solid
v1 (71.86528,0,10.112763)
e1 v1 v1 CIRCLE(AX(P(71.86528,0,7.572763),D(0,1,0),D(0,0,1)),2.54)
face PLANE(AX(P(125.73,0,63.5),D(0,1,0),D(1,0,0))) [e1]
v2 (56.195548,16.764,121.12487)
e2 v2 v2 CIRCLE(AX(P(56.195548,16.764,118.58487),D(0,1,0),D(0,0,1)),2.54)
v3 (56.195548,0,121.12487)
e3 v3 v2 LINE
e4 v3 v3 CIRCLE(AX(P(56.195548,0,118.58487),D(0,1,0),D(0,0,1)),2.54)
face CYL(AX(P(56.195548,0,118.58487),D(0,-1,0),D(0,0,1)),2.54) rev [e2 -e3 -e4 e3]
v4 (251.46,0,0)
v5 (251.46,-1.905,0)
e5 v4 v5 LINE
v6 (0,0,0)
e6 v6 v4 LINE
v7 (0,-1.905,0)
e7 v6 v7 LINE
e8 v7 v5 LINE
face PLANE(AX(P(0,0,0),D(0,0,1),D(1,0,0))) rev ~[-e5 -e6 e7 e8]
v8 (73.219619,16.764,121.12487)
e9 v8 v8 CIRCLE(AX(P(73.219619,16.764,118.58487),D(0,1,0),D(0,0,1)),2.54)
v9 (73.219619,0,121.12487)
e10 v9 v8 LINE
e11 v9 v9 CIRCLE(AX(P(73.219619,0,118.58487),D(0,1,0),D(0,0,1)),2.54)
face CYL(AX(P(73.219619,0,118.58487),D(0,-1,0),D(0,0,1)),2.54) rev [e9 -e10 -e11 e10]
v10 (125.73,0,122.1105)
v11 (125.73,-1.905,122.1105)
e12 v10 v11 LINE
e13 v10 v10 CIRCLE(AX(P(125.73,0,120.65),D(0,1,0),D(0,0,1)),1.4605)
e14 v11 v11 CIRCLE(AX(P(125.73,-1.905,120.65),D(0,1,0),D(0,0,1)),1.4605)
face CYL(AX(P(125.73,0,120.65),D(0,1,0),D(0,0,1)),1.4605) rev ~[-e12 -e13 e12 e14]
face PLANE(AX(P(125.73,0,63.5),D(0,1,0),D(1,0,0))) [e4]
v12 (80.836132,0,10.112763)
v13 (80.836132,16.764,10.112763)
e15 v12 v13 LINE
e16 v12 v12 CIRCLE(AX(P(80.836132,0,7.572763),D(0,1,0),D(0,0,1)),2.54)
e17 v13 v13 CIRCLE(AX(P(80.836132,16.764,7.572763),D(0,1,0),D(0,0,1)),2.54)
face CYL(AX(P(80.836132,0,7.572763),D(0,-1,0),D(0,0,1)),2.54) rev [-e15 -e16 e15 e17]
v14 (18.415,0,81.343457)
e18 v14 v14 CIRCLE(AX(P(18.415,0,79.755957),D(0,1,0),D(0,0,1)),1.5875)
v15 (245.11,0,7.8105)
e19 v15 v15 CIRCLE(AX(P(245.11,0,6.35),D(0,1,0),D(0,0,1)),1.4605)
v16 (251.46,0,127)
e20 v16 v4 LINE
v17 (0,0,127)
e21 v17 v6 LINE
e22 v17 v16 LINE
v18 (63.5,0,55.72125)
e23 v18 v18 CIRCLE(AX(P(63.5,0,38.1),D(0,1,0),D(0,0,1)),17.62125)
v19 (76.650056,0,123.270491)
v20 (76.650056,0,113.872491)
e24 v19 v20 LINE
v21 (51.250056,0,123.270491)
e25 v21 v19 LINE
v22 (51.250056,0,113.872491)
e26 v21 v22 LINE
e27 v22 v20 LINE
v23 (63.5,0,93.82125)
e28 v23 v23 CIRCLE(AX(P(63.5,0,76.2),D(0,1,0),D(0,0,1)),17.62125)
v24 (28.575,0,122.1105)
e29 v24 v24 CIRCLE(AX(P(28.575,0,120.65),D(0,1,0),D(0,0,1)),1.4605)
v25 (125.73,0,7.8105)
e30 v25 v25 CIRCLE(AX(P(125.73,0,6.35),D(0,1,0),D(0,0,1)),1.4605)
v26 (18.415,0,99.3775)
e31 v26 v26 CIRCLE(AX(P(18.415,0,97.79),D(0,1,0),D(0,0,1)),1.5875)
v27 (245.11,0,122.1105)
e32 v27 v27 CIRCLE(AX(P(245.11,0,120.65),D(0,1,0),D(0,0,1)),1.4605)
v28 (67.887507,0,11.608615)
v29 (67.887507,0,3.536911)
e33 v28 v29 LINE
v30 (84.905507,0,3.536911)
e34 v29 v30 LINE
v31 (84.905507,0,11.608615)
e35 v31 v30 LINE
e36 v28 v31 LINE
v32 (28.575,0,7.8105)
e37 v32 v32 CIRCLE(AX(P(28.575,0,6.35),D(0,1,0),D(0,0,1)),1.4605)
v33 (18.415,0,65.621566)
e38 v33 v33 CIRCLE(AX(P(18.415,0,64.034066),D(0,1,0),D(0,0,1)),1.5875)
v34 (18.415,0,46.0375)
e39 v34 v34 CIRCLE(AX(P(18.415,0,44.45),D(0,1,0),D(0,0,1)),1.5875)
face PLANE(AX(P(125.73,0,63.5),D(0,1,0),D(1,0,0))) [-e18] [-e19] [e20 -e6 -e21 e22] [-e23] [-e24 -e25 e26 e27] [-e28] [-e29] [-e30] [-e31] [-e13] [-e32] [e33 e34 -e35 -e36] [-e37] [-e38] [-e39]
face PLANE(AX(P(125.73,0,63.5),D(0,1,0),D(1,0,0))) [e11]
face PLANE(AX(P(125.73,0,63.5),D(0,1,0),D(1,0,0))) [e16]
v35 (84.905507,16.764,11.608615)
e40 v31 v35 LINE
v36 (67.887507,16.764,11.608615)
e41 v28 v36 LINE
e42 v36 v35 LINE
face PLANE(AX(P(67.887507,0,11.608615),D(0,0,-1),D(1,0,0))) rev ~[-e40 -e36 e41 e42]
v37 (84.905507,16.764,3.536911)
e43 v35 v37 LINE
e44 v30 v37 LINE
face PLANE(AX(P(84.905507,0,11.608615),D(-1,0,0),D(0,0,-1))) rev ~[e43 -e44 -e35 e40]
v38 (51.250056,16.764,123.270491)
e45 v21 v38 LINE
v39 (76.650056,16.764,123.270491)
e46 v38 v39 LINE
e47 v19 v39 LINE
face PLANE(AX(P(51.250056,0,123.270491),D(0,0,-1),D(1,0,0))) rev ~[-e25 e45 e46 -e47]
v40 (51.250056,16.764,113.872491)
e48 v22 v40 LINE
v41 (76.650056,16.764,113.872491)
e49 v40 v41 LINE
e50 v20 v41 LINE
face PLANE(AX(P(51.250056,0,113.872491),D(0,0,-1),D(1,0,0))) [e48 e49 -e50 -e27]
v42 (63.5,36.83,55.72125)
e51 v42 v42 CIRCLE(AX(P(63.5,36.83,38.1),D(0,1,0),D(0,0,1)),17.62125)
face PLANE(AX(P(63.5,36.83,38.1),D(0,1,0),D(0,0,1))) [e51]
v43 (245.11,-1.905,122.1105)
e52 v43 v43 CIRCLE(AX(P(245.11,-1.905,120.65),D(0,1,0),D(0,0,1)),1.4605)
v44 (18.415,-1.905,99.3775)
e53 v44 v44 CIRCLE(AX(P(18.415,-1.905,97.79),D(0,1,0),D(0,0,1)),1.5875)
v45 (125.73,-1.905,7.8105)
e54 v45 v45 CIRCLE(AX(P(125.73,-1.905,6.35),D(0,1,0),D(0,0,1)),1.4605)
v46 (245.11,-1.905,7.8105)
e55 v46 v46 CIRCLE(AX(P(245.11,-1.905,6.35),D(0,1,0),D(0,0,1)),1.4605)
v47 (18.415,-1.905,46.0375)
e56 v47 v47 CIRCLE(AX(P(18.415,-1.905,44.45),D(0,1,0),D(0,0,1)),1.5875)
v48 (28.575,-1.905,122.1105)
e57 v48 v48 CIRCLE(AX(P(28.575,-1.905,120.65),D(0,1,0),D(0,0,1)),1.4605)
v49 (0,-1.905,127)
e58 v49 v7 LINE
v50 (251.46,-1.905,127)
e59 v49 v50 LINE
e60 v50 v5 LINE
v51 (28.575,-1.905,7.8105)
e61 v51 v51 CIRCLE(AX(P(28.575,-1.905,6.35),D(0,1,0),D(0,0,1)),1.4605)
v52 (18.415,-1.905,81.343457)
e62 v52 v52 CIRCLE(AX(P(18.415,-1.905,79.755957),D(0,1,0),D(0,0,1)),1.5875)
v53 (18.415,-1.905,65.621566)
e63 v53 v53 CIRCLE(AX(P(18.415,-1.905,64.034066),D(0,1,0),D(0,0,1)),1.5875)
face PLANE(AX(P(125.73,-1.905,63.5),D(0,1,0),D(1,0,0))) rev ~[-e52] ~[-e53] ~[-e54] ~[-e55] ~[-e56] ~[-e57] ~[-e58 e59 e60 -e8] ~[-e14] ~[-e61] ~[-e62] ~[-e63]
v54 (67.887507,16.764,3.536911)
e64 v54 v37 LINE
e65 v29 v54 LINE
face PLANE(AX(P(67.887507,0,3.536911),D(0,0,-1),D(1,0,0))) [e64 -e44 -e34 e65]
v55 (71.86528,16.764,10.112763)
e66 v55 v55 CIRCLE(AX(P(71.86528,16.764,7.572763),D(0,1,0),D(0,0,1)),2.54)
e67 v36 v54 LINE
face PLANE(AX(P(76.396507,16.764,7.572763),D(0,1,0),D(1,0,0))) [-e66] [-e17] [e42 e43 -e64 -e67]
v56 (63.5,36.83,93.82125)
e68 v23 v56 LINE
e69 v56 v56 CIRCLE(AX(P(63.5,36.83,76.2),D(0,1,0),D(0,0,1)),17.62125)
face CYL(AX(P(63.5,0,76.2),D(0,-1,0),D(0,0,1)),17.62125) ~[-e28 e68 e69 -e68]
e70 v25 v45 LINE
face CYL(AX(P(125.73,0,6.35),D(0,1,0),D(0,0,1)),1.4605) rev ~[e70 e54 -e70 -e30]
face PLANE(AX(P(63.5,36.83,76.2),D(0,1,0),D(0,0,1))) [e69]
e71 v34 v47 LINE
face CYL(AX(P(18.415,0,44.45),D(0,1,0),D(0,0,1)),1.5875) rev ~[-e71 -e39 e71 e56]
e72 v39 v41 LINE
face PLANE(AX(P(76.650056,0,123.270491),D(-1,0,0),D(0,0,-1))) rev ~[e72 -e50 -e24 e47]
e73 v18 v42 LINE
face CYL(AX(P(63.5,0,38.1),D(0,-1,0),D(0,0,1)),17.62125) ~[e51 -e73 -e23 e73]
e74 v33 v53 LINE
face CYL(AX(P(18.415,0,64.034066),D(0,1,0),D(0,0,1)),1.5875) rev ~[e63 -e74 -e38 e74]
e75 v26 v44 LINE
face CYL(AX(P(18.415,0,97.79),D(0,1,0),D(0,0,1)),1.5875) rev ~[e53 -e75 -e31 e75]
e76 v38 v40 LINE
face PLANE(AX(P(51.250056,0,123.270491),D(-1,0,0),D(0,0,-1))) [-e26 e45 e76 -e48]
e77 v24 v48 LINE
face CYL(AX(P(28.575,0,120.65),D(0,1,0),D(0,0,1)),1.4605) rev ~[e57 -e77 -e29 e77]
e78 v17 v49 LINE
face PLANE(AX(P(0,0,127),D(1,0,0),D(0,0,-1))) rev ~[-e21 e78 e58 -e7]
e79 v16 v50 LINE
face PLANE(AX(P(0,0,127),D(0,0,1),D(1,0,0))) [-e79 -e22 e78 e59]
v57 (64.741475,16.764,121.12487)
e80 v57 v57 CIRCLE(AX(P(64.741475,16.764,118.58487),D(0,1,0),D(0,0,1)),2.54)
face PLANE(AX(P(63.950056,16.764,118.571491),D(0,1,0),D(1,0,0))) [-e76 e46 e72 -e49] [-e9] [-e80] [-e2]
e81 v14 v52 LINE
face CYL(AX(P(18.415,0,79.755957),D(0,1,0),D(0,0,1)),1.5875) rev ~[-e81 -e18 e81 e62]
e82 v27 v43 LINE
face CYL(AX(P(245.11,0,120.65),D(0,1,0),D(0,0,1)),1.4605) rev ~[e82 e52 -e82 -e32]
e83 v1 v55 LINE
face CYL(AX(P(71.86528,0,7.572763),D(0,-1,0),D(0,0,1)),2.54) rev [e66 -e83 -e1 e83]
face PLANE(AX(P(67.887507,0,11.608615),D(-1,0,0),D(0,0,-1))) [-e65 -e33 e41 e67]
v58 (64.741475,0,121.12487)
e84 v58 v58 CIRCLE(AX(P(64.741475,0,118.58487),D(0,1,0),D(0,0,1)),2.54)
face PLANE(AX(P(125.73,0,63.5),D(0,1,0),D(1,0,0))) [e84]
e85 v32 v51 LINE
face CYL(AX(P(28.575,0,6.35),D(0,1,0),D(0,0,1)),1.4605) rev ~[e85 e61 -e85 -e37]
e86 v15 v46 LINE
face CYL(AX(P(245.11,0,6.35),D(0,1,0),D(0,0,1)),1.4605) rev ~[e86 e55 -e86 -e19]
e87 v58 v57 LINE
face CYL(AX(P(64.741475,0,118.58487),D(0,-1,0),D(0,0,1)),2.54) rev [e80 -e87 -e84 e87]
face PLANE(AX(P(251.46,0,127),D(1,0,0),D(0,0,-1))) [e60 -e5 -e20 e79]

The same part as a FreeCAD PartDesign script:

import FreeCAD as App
import Part
import Sketcher
Q = App.Units.Quantity

doc = App.newDocument("Part")
body = doc.addObject("PartDesign::Body", "Body")

# Sketch on XZ plane
sketch1 = body.newObject("Sketcher::SketchObject", "Sketch")
sketch1.AttachmentSupport = (doc.getObject("XZ_Plane"), [""])
sketch1.MapMode = "FlatFace"
sketch1.addGeometry(Part.LineSegment(App.Vector(0, 0, 0), App.Vector(0, 127, 0)), False)
sketch1.addGeometry(Part.LineSegment(App.Vector(0, 127, 0), App.Vector(251.5, 127, 0)), False)
sketch1.addGeometry(Part.LineSegment(App.Vector(251.5, 127, 0), App.Vector(251.5, 0, 0)), False)
sketch1.addGeometry(Part.LineSegment(App.Vector(251.5, 0, 0), App.Vector(0, 0, 0)), False)
sketch1.addGeometry(Part.Circle(App.Vector(28.6, 120.7, 0), App.Vector(0, 0, 1), 1.5), False)
sketch1.addGeometry(Part.Circle(App.Vector(18.4, 97.8, 0), App.Vector(0, 0, 1), 1.6), False)
sketch1.addGeometry(Part.Circle(App.Vector(125.7, 120.7, 0), App.Vector(0, 0, 1), 1.5), False)
sketch1.addGeometry(Part.Circle(App.Vector(18.4, 79.8, 0), App.Vector(0, 0, 1), 1.6), False)
sketch1.addGeometry(Part.Circle(App.Vector(18.4, 64, 0), App.Vector(0, 0, 1), 1.6), False)
sketch1.addGeometry(Part.Circle(App.Vector(245.1, 120.7, 0), App.Vector(0, 0, 1), 1.5), False)
sketch1.addGeometry(Part.Circle(App.Vector(18.4, 44.5, 0), App.Vector(0, 0, 1), 1.6), False)
sketch1.addGeometry(Part.Circle(App.Vector(28.6, 6.3, 0), App.Vector(0, 0, 1), 1.5), False)
sketch1.addGeometry(Part.Circle(App.Vector(125.7, 6.3, 0), App.Vector(0, 0, 1), 1.5), False)
sketch1.addGeometry(Part.Circle(App.Vector(245.1, 6.3, 0), App.Vector(0, 0, 1), 1.5), False)
sketch1.addConstraint(Sketcher.Constraint("Coincident", 0, 2, 1, 1))
sketch1.addConstraint(Sketcher.Constraint("Coincident", 1, 2, 2, 1))
sketch1.addConstraint(Sketcher.Constraint("Coincident", 2, 2, 3, 1))
sketch1.addConstraint(Sketcher.Constraint("Coincident", 3, 2, 0, 1))
sketch1.addConstraint(Sketcher.Constraint("Vertical", 0))
sketch1.addConstraint(Sketcher.Constraint("Horizontal", 1))
sketch1.addConstraint(Sketcher.Constraint("Vertical", 2))
sketch1.addConstraint(Sketcher.Constraint("Horizontal", 3))
sketch1.addConstraint(Sketcher.Constraint("Coincident", 3, 2, -1, 1))
sketch1.addConstraint(Sketcher.Constraint("Equal", 4, 6))
sketch1.addConstraint(Sketcher.Constraint("Equal", 5, 7))
sketch1.addConstraint(Sketcher.Constraint("Equal", 7, 8))
sketch1.addConstraint(Sketcher.Constraint("Equal", 6, 9))
sketch1.addConstraint(Sketcher.Constraint("Equal", 8, 10))
sketch1.addConstraint(Sketcher.Constraint("Equal", 9, 11))
sketch1.addConstraint(Sketcher.Constraint("Equal", 11, 12))
sketch1.addConstraint(Sketcher.Constraint("Equal", 12, 13))
sketch1.addConstraint(Sketcher.Constraint("Horizontal", 4, 3, 6, 3))
sketch1.addConstraint(Sketcher.Constraint("Horizontal", 6, 3, 9, 3))
sketch1.addConstraint(Sketcher.Constraint("Horizontal", 11, 3, 12, 3))
sketch1.addConstraint(Sketcher.Constraint("Horizontal", 12, 3, 13, 3))
sketch1.addConstraint(Sketcher.Constraint("Vertical", 5, 3, 7, 3))
sketch1.addConstraint(Sketcher.Constraint("Vertical", 7, 3, 8, 3))
sketch1.addConstraint(Sketcher.Constraint("Vertical", 8, 3, 10, 3))
sketch1.addConstraint(Sketcher.Constraint("Vertical", 4, 3, 11, 3))
sketch1.addConstraint(Sketcher.Constraint("Vertical", 6, 3, 12, 3))
sketch1.addConstraint(Sketcher.Constraint("Vertical", 9, 3, 13, 3))
sketch1.addConstraint(Sketcher.Constraint("DistanceY", 0, 1, 0, 2, Q("5 in")))
sketch1.addConstraint(Sketcher.Constraint("Diameter", 4, Q("0.115 in")))
sketch1.addConstraint(Sketcher.Constraint("Diameter", 5, Q("0.125 in")))
sketch1.addConstraint(Sketcher.Constraint("DistanceX", 1, 1, 1, 2, Q("9.9 in")))
sketch1.addConstraint(Sketcher.Constraint("DistanceY", 10, 3, 4, 3, Q("3 in")))
sketch1.addConstraint(Sketcher.Constraint("DistanceX", 5, 3, 4, 3, Q("0.4 in")))
sketch1.addConstraint(Sketcher.Constraint("DistanceY", 5, 3, 4, 3, Q("0.9 in")))
sketch1.addConstraint(Sketcher.Constraint("DistanceX", 6, 3, 9, 3, Q("4.7 in")))
sketch1.addConstraint(Sketcher.Constraint("DistanceY", 11, 3, 10, 3, Q("1.5 in")))
sketch1.addConstraint(Sketcher.Constraint("DistanceY", -1, 1, 4, 3, Q("4.75 in")))
sketch1.addConstraint(Sketcher.Constraint("DistanceX", -1, 1, 6, 3, Q("4.95 in")))
sketch1.addConstraint(Sketcher.Constraint("DistanceX", -1, 1, 4, 3, Q("1.125 in")))
sketch1.addConstraint(Sketcher.Constraint("DistanceY", 8, 3, 7, 3, Q("15.72189 mm")))
sketch1.addConstraint(Sketcher.Constraint("DistanceY", -1, 1, 7, 3, Q("79.755957 mm")))
pad1 = body.newObject("PartDesign::Pad", "Pad")
pad1.Profile = sketch1
pad1.Length = Q("0.075 in")

# Sketch on XZ plane
sketch2 = body.newObject("Sketcher::SketchObject", "Sketch001")
sketch2.AttachmentSupport = (doc.getObject("XZ_Plane"), [""])
sketch2.MapMode = "FlatFace"
sketch2.addGeometry(Part.Circle(App.Vector(64, 76, 0), App.Vector(0, 0, 1), 18), False)
sketch2.addGeometry(Part.Circle(App.Vector(64, 38, 0), App.Vector(0, 0, 1), 18), False)
sketch2.addConstraint(Sketcher.Constraint("Equal", 0, 1))
sketch2.addConstraint(Sketcher.Constraint("Vertical", 0, 3, 1, 3))
sketch2.addConstraint(Sketcher.Constraint("DistanceY", -1, 1, 0, 3, Q("3 in")))
sketch2.addConstraint(Sketcher.Constraint("Diameter", 0, Q("1.3875 in")))
sketch2.addConstraint(Sketcher.Constraint("DistanceX", -1, 1, 0, 3, Q("2.5 in")))
sketch2.addConstraint(Sketcher.Constraint("DistanceY", -1, 1, 1, 3, Q("1.5 in")))
pad2 = body.newObject("PartDesign::Pad", "Pad001")
pad2.Profile = sketch2
pad2.Length = Q("1.45 in")
pad2.Reversed = True

# Sketch on XZ plane
sketch3 = body.newObject("Sketcher::SketchObject", "Sketch002")
sketch3.AttachmentSupport = (doc.getObject("XZ_Plane"), [""])
sketch3.MapMode = "FlatFace"
sketch3.addGeometry(Part.LineSegment(App.Vector(51.3, 113.9, 0), App.Vector(51.3, 123.3, 0)), False)
sketch3.addGeometry(Part.LineSegment(App.Vector(51.3, 123.3, 0), App.Vector(76.7, 123.3, 0)), False)
sketch3.addGeometry(Part.LineSegment(App.Vector(76.7, 123.3, 0), App.Vector(76.7, 113.9, 0)), False)
sketch3.addGeometry(Part.LineSegment(App.Vector(76.7, 113.9, 0), App.Vector(51.3, 113.9, 0)), False)
sketch3.addGeometry(Part.Circle(App.Vector(56.2, 118.6, 0), App.Vector(0, 0, 1), 2.5), False)
sketch3.addGeometry(Part.Circle(App.Vector(64.7, 118.6, 0), App.Vector(0, 0, 1), 2.5), False)
sketch3.addGeometry(Part.Circle(App.Vector(73.2, 118.6, 0), App.Vector(0, 0, 1), 2.5), False)
sketch3.addGeometry(Part.LineSegment(App.Vector(67.9, 3.5, 0), App.Vector(67.9, 11.6, 0)), False)
sketch3.addGeometry(Part.LineSegment(App.Vector(67.9, 11.6, 0), App.Vector(84.9, 11.6, 0)), False)
sketch3.addGeometry(Part.LineSegment(App.Vector(84.9, 11.6, 0), App.Vector(84.9, 3.5, 0)), False)
sketch3.addGeometry(Part.LineSegment(App.Vector(84.9, 3.5, 0), App.Vector(67.9, 3.5, 0)), False)
sketch3.addGeometry(Part.Circle(App.Vector(71.9, 7.6, 0), App.Vector(0, 0, 1), 2.5), False)
sketch3.addGeometry(Part.Circle(App.Vector(80.8, 7.6, 0), App.Vector(0, 0, 1), 2.5), False)
sketch3.addConstraint(Sketcher.Constraint("Coincident", 0, 2, 1, 1))
sketch3.addConstraint(Sketcher.Constraint("Coincident", 1, 2, 2, 1))
sketch3.addConstraint(Sketcher.Constraint("Coincident", 2, 2, 3, 1))
sketch3.addConstraint(Sketcher.Constraint("Coincident", 3, 2, 0, 1))
sketch3.addConstraint(Sketcher.Constraint("Coincident", 7, 2, 8, 1))
sketch3.addConstraint(Sketcher.Constraint("Coincident", 8, 2, 9, 1))
sketch3.addConstraint(Sketcher.Constraint("Coincident", 9, 2, 10, 1))
sketch3.addConstraint(Sketcher.Constraint("Coincident", 10, 2, 7, 1))
sketch3.addConstraint(Sketcher.Constraint("Vertical", 0))
sketch3.addConstraint(Sketcher.Constraint("Horizontal", 1))
sketch3.addConstraint(Sketcher.Constraint("Vertical", 2))
sketch3.addConstraint(Sketcher.Constraint("Horizontal", 3))
sketch3.addConstraint(Sketcher.Constraint("Vertical", 7))
sketch3.addConstraint(Sketcher.Constraint("Horizontal", 8))
sketch3.addConstraint(Sketcher.Constraint("Vertical", 9))
sketch3.addConstraint(Sketcher.Constraint("Horizontal", 10))
sketch3.addConstraint(Sketcher.Constraint("Equal", 4, 5))
sketch3.addConstraint(Sketcher.Constraint("Equal", 5, 6))
sketch3.addConstraint(Sketcher.Constraint("Equal", 6, 11))
sketch3.addConstraint(Sketcher.Constraint("Equal", 11, 12))
sketch3.addConstraint(Sketcher.Constraint("Horizontal", 4, 3, 5, 3))
sketch3.addConstraint(Sketcher.Constraint("Horizontal", 5, 3, 6, 3))
sketch3.addConstraint(Sketcher.Constraint("Horizontal", 11, 3, 12, 3))
sketch3.addConstraint(Sketcher.Constraint("Diameter", 4, Q("0.2 in")))
sketch3.addConstraint(Sketcher.Constraint("DistanceX", 1, 1, 1, 2, Q("1 in")))
sketch3.addConstraint(Sketcher.Constraint("DistanceX", 8, 1, 8, 2, Q("0.67 in")))
sketch3.addConstraint(Sketcher.Constraint("DistanceY", 0, 1, 0, 2, Q("0.37 in")))
sketch3.addConstraint(Sketcher.Constraint("DistanceY", 7, 1, 7, 2, Q("8.071704 mm")))
sketch3.addConstraint(Sketcher.Constraint("DistanceY", -1, 1, 4, 3, Q("118.58487 mm")))
sketch3.addConstraint(Sketcher.Constraint("DistanceX", -1, 1, 6, 3, Q("73.219619 mm")))
sketch3.addConstraint(Sketcher.Constraint("DistanceX", -1, 1, 11, 3, Q("71.86528 mm")))
sketch3.addConstraint(Sketcher.Constraint("DistanceY", -1, 1, 0, 2, Q("123.270491 mm")))
sketch3.addConstraint(Sketcher.Constraint("DistanceY", -1, 1, 9, 2, Q("3.536911 mm")))
sketch3.addConstraint(Sketcher.Constraint("DistanceX", 4, 3, 6, 3, Q("17.024072 mm")))
sketch3.addConstraint(Sketcher.Constraint("DistanceX", 0, 2, 4, 3, Q("4.945492 mm")))
sketch3.addConstraint(Sketcher.Constraint("DistanceX", 0, 2, 5, 3, Q("13.491419 mm")))
sketch3.addConstraint(Sketcher.Constraint("DistanceY", 11, 3, 0, 2, Q("115.697728 mm")))
sketch3.addConstraint(Sketcher.Constraint("DistanceX", 7, 2, 2, 2, Q("8.762549 mm")))
sketch3.addConstraint(Sketcher.Constraint("DistanceX", -1, 1, 12, 3, Q("80.836132 mm")))
pad3 = body.newObject("PartDesign::Pad", "Pad002")
pad3.Profile = sketch3
pad3.Length = Q("0.66 in")
pad3.Reversed = True

doc.recompute()
